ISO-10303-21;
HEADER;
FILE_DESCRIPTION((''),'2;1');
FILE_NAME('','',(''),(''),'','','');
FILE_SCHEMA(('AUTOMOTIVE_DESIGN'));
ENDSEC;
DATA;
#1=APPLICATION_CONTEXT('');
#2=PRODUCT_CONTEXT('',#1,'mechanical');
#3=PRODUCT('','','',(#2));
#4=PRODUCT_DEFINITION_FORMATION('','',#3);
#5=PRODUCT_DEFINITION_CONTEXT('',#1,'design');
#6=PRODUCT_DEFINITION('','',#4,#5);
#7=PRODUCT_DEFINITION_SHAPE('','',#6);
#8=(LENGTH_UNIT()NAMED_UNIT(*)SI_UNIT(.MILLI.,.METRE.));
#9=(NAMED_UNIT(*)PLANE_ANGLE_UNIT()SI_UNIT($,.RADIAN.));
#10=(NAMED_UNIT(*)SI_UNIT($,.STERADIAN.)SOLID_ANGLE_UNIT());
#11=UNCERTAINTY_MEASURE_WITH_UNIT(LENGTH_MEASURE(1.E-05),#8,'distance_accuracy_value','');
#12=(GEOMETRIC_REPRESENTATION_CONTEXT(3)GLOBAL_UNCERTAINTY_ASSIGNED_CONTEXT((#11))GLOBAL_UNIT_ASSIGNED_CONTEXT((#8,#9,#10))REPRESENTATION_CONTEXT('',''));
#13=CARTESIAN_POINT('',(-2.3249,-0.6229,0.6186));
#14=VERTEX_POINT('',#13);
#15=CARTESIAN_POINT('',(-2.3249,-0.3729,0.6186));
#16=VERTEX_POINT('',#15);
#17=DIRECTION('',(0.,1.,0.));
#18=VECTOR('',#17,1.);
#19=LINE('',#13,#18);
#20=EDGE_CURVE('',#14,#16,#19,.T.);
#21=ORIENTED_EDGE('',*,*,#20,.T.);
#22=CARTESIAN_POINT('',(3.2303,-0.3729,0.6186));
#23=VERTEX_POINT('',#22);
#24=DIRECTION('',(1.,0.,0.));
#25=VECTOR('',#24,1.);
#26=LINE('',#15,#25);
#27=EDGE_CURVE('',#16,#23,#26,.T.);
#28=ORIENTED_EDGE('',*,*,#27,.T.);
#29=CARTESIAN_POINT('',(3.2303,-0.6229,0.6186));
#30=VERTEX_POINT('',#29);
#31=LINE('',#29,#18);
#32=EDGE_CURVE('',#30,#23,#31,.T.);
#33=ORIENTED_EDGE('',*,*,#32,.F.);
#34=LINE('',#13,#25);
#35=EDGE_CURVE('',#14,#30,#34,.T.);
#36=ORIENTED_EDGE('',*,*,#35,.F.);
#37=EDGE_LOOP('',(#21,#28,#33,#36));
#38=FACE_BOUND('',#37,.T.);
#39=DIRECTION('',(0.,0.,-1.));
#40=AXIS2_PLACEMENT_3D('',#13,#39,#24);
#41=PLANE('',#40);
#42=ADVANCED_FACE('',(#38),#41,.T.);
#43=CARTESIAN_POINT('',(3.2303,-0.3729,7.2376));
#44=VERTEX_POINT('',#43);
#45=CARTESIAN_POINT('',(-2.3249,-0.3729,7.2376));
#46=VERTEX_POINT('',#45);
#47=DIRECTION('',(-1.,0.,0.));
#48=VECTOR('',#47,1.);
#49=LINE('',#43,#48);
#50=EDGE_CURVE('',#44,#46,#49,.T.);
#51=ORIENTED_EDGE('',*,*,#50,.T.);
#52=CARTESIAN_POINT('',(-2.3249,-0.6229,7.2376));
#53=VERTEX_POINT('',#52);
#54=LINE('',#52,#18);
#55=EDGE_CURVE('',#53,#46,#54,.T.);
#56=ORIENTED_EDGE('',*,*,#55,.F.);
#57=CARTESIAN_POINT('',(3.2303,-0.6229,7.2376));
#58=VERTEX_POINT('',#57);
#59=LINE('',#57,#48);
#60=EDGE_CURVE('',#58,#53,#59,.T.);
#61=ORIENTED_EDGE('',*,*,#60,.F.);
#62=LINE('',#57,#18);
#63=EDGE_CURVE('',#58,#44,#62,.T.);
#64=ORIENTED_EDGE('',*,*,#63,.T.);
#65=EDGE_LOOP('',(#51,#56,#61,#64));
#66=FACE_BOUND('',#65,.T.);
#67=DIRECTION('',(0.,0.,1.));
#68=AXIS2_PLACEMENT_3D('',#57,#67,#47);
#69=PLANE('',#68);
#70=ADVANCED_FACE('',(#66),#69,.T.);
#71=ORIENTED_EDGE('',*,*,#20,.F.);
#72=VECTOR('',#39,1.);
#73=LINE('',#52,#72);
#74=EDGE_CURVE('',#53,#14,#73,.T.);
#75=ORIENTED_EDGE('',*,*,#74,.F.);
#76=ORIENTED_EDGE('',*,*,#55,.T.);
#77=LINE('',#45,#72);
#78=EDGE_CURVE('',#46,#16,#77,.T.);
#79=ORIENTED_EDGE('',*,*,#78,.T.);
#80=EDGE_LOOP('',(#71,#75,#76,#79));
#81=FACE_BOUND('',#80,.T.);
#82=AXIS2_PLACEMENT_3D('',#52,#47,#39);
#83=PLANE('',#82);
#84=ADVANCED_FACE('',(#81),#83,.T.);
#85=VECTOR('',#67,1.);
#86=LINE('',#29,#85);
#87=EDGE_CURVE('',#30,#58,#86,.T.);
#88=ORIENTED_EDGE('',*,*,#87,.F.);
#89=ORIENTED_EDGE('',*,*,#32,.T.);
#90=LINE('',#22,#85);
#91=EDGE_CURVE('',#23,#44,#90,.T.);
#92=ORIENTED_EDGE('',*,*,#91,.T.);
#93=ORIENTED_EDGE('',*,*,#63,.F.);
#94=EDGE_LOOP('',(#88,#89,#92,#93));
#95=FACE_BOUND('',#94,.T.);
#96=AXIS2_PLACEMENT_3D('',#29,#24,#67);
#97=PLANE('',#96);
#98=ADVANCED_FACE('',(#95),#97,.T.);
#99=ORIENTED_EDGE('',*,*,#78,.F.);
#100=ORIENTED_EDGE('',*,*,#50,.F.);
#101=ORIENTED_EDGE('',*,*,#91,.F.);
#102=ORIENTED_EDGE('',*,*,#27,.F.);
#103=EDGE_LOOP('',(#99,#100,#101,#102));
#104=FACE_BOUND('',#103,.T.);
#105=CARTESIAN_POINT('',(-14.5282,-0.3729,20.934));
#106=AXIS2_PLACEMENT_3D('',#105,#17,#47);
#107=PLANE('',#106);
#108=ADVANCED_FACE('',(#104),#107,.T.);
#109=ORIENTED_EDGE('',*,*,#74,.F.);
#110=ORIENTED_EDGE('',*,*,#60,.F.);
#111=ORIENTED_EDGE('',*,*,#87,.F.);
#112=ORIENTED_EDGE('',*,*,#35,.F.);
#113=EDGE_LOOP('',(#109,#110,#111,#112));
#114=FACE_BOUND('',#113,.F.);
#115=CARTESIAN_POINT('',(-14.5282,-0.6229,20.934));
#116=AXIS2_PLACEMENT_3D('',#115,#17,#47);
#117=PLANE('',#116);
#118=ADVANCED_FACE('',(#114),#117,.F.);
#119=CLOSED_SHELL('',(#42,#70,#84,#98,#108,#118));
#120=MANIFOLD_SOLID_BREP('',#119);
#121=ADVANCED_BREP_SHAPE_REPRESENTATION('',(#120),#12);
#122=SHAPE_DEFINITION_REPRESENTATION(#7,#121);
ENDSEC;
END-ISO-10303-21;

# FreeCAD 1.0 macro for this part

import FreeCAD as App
import Part
import Sketcher
from FreeCAD import Vector
Q = App.Units.Quantity

doc = App.newDocument("Part")
body = doc.addObject("PartDesign::Body", "Body")

# Sketch on XZ plane
sketch1 = doc.addObject("Sketcher::SketchObject", "Sketch")
body.addObject(sketch1)
sketch1.AttachmentSupport = (doc.XZ_Plane, [""])
sketch1.MapMode = "FlatFace"
sketch1.AttachmentOffset = App.Placement(Vector(0, 0, 0.6229), App.Rotation())
sketch1.addGeometry([
    Part.LineSegment(Vector(3, 1, 0), Vector(-2, 1, 0)),
    Part.LineSegment(Vector(-2, 1, 0), Vector(-2, 7, 0)),
    Part.LineSegment(Vector(-2, 7, 0), Vector(3, 7, 0)),
    Part.LineSegment(Vector(3, 7, 0), Vector(3, 1, 0)),
], False)
sketch1.addConstraint([
    Sketcher.Constraint("Coincident", 0, 2, 1, 1),
    Sketcher.Constraint("Coincident", 1, 2, 2, 1),
    Sketcher.Constraint("Coincident", 2, 2, 3, 1),
    Sketcher.Constraint("Coincident", 3, 2, 0, 1),
    Sketcher.Constraint("Horizontal", 0),
    Sketcher.Constraint("Vertical", 1),
    Sketcher.Constraint("Horizontal", 2),
    Sketcher.Constraint("Vertical", 3),
    Sketcher.Constraint("DistanceY", 1, 1, 1, 2, Q("6.619 mm")),
    Sketcher.Constraint("DistanceX", 0, 2, 0, 1, Q("5.5552 mm")),
    Sketcher.Constraint("DistanceX", 0, 2, -1, 1, Q("2.325 mm")),
    Sketcher.Constraint("DistanceY", -1, 1, 0, 2, Q("0.6186 mm")),
])
pad1 = doc.addObject("PartDesign::Pad", "Pad")
body.addObject(pad1)
pad1.Profile = sketch1
pad1.Length = 0.25
pad1.Reversed = True

doc.recompute()
